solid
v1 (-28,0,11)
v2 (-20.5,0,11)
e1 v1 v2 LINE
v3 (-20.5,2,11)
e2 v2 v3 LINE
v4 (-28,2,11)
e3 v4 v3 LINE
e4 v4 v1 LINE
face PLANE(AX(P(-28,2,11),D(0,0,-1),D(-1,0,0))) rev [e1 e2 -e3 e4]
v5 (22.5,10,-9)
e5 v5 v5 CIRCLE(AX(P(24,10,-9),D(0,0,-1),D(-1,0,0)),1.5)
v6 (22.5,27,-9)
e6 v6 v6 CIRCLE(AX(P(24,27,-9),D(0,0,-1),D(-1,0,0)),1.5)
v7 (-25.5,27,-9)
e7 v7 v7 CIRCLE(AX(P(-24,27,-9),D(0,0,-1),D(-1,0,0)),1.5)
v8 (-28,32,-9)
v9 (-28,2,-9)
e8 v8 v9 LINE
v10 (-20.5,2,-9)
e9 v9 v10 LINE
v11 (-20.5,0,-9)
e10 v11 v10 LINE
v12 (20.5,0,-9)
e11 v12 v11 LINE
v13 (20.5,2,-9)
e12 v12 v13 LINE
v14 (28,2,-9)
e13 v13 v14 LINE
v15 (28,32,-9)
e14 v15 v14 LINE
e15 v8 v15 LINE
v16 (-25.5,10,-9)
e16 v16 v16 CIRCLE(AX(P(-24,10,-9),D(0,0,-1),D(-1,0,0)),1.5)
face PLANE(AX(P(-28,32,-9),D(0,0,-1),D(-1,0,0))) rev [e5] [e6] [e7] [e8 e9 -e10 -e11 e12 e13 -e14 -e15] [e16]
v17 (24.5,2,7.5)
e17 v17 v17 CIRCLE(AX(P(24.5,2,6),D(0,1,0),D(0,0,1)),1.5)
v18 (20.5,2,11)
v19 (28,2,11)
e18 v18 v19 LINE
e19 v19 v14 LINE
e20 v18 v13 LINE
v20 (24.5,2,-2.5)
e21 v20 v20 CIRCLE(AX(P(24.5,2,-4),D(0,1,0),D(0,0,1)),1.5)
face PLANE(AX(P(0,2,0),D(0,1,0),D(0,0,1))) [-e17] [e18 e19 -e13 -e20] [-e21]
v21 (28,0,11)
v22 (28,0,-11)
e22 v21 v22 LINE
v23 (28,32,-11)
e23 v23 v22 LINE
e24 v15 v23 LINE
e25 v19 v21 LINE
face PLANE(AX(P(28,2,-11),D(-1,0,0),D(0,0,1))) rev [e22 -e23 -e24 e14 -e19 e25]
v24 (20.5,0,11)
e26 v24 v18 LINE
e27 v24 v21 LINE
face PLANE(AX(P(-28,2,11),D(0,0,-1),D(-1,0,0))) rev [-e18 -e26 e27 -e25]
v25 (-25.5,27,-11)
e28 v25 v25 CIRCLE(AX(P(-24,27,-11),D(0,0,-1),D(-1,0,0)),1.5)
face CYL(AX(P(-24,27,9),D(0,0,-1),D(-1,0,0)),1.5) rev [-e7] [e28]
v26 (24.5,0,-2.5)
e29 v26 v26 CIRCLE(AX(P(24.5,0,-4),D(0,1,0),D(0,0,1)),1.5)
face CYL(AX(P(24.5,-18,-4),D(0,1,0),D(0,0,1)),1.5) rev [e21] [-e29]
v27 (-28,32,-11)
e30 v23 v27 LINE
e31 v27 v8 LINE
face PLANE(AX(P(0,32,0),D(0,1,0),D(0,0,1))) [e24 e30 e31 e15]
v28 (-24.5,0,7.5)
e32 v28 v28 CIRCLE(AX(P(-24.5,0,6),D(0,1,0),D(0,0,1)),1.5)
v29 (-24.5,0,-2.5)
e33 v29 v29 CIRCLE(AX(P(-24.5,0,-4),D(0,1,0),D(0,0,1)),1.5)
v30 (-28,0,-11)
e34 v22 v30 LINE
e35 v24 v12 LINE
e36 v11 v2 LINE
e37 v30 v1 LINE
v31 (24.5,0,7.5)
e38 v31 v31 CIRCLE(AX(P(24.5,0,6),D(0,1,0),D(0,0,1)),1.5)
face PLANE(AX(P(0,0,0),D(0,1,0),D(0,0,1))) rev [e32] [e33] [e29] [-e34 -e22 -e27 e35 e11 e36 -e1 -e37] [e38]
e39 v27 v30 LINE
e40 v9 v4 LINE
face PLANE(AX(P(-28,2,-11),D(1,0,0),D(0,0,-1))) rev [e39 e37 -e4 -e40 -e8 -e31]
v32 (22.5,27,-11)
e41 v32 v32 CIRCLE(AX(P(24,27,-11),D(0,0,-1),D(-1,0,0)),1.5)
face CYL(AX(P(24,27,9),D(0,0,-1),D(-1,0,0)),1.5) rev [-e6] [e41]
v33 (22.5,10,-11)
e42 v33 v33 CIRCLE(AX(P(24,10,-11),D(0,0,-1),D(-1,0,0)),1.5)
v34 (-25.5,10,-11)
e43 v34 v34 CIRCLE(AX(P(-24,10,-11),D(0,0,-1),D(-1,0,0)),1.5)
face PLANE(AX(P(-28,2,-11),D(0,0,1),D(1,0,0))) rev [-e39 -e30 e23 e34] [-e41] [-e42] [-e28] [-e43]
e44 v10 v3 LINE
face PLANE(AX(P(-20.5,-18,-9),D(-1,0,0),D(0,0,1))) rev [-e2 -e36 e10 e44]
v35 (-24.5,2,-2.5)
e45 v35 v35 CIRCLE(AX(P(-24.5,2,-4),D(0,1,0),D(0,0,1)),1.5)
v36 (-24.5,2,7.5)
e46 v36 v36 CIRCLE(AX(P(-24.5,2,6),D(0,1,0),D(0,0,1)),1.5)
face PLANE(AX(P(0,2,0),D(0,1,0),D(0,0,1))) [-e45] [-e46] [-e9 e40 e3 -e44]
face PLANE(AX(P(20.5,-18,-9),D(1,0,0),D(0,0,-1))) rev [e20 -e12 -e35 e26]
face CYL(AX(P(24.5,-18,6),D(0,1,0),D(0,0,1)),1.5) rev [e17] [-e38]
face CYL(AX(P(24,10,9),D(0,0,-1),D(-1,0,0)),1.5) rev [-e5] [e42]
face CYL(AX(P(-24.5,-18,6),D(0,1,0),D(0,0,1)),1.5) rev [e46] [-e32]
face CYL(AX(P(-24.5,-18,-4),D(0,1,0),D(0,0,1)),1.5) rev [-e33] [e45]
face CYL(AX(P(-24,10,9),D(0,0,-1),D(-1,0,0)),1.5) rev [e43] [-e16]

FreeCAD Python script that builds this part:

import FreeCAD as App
import Part
import Sketcher
Q = App.Units.Quantity

doc = App.newDocument("Part")
params = doc.addObject("Spreadsheet::Sheet", "Params")
for row, (alias, value) in enumerate([
    ("sketch1_width", "56 mm"),
    ("sketch1_height", "22 mm"),
    ("pad1_length", "2 mm"),
    ("sketch2_width", "56 mm"),
    ("sketch2_height", "2 mm"),
    ("pad2_length", "30 mm"),
    ("sketch3_width", "41 mm"),
    ("sketch3_height", "20 mm"),
    ("pocket1_length", "20 mm"),
    ("sketch4_diameter", "3 mm"),
    ("pocket2_length", "20 mm"),
    ("sketch5_diameter", "3 mm"),
    ("pocket3_length", "20 mm"),
], start=1):
    params.set(f"A{row}", alias)
    params.set(f"B{row}", "=" + value)
    params.setAlias(f"B{row}", alias)

body = doc.addObject("PartDesign::Body", "Body")

sketch1 = doc.addObject("Sketcher::SketchObject", "Sketch")
body.addObject(sketch1)
sketch1.AttachmentSupport = (doc.XZ_Plane, [""])
sketch1.MapMode = "FlatFace"
sketch1.addGeometry(Part.LineSegment(App.Vector(-28, -11, 0), App.Vector(-28, 11, 0)), False)
sketch1.addGeometry(Part.LineSegment(App.Vector(-28, 11, 0), App.Vector(28, 11, 0)), False)
sketch1.addGeometry(Part.LineSegment(App.Vector(28, 11, 0), App.Vector(28, -11, 0)), False)
sketch1.addGeometry(Part.LineSegment(App.Vector(28, -11, 0), App.Vector(-28, -11, 0)), False)
sketch1.addConstraint(Sketcher.Constraint("Coincident", 0, 2, 1, 1))
sketch1.addConstraint(Sketcher.Constraint("Coincident", 1, 2, 2, 1))
sketch1.addConstraint(Sketcher.Constraint("Coincident", 2, 2, 3, 1))
sketch1.addConstraint(Sketcher.Constraint("Coincident", 3, 2, 0, 1))
sketch1.addConstraint(Sketcher.Constraint("Vertical", 0))
sketch1.addConstraint(Sketcher.Constraint("Horizontal", 1))
sketch1.addConstraint(Sketcher.Constraint("Vertical", 2))
sketch1.addConstraint(Sketcher.Constraint("Horizontal", 3))
sketch1.addConstraint(Sketcher.Constraint("Symmetric", 0, 2, 2, 2, -1, 1))
sketch1.addConstraint(Sketcher.Constraint("DistanceX", 1, 1, 1, 2, Q("56 mm")))
sketch1.addConstraint(Sketcher.Constraint("DistanceY", 0, 1, 0, 2, Q("22 mm")))
sketch1.setExpression("Constraints[9]", "Params.sketch1_width")
sketch1.setExpression("Constraints[10]", "Params.sketch1_height")
pad1 = doc.addObject("PartDesign::Pad", "Pad")
body.addObject(pad1)
pad1.Profile = sketch1
pad1.setExpression("Length", "Params.pad1_length")
pad1.Reversed = True

sketch2 = doc.addObject("Sketcher::SketchObject", "Sketch001")
body.addObject(sketch2)
sketch2.AttachmentSupport = (doc.XZ_Plane, [""])
sketch2.MapMode = "FlatFace"
sketch2.AttachmentOffset = App.Placement(App.Vector(0, 0, -2), App.Rotation())
sketch2.addGeometry(Part.LineSegment(App.Vector(-28, -11, 0), App.Vector(-28, -9, 0)), False)
sketch2.addGeometry(Part.LineSegment(App.Vector(-28, -9, 0), App.Vector(28, -9, 0)), False)
sketch2.addGeometry(Part.LineSegment(App.Vector(28, -9, 0), App.Vector(28, -11, 0)), False)
sketch2.addGeometry(Part.LineSegment(App.Vector(28, -11, 0), App.Vector(-28, -11, 0)), False)
sketch2.addConstraint(Sketcher.Constraint("Coincident", 0, 2, 1, 1))
sketch2.addConstraint(Sketcher.Constraint("Coincident", 1, 2, 2, 1))
sketch2.addConstraint(Sketcher.Constraint("Coincident", 2, 2, 3, 1))
sketch2.addConstraint(Sketcher.Constraint("Coincident", 3, 2, 0, 1))
sketch2.addConstraint(Sketcher.Constraint("Vertical", 0))
sketch2.addConstraint(Sketcher.Constraint("Horizontal", 1))
sketch2.addConstraint(Sketcher.Constraint("Vertical", 2))
sketch2.addConstraint(Sketcher.Constraint("Horizontal", 3))
sketch2.addConstraint(Sketcher.Constraint("DistanceX", 1, 1, 1, 2, Q("56 mm")))
sketch2.addConstraint(Sketcher.Constraint("DistanceY", 0, 1, 0, 2, Q("2 mm")))
sketch2.addConstraint(Sketcher.Constraint("DistanceX", 0, 2, -1, 1, Q("28 mm")))
sketch2.addConstraint(Sketcher.Constraint("DistanceY", 0, 2, -1, 1, Q("9 mm")))
sketch2.setExpression("Constraints[8]", "Params.sketch2_width")
sketch2.setExpression("Constraints[9]", "Params.sketch2_height")
pad2 = doc.addObject("PartDesign::Pad", "Pad001")
body.addObject(pad2)
pad2.Profile = sketch2
pad2.setExpression("Length", "Params.pad2_length")
pad2.Reversed = True

sketch3 = doc.addObject("Sketcher::SketchObject", "Sketch002")
body.addObject(sketch3)
sketch3.AttachmentSupport = (doc.XZ_Plane, [""])
sketch3.MapMode = "FlatFace"
sketch3.AttachmentOffset = App.Placement(App.Vector(0, 0, -2), App.Rotation())
sketch3.addGeometry(Part.LineSegment(App.Vector(-20, -9, 0), App.Vector(-20, 11, 0)), False)
sketch3.addGeometry(Part.LineSegment(App.Vector(-20, 11, 0), App.Vector(20, 11, 0)), False)
sketch3.addGeometry(Part.LineSegment(App.Vector(20, 11, 0), App.Vector(20, -9, 0)), False)
sketch3.addGeometry(Part.LineSegment(App.Vector(20, -9, 0), App.Vector(-20, -9, 0)), False)
sketch3.addConstraint(Sketcher.Constraint("Coincident", 0, 2, 1, 1))
sketch3.addConstraint(Sketcher.Constraint("Coincident", 1, 2, 2, 1))
sketch3.addConstraint(Sketcher.Constraint("Coincident", 2, 2, 3, 1))
sketch3.addConstraint(Sketcher.Constraint("Coincident", 3, 2, 0, 1))
sketch3.addConstraint(Sketcher.Constraint("Vertical", 0))
sketch3.addConstraint(Sketcher.Constraint("Horizontal", 1))
sketch3.addConstraint(Sketcher.Constraint("Vertical", 2))
sketch3.addConstraint(Sketcher.Constraint("Horizontal", 3))
sketch3.addConstraint(Sketcher.Constraint("DistanceX", 1, 1, 1, 2, Q("41 mm")))
sketch3.addConstraint(Sketcher.Constraint("DistanceY", 0, 1, 0, 2, Q("20 mm")))
sketch3.addConstraint(Sketcher.Constraint("DistanceY", -1, 1, 0, 2, Q("11 mm")))
sketch3.addConstraint(Sketcher.Constraint("DistanceX", 0, 2, -1, 1, Q("20.5 mm")))
sketch3.setExpression("Constraints[8]", "Params.sketch3_width")
sketch3.setExpression("Constraints[9]", "Params.sketch3_height")
pocket1 = doc.addObject("PartDesign::Pocket", "Pocket")
body.addObject(pocket1)
pocket1.Profile = sketch3
pocket1.setExpression("Length", "Params.pocket1_length")
pocket1.Reversed = True

sketch4 = doc.addObject("Sketcher::SketchObject", "Sketch003")
body.addObject(sketch4)
sketch4.AttachmentSupport = (doc.XZ_Plane, [""])
sketch4.MapMode = "FlatFace"
sketch4.AttachmentOffset = App.Placement(App.Vector(0, 0, -2), App.Rotation())
sketch4.addGeometry(Part.Circle(App.Vector(-24.5, -4, 0), App.Vector(0, 0, 1), 1.5), False)
sketch4.addGeometry(Part.Circle(App.Vector(-24.5, 6, 0), App.Vector(0, 0, 1), 1.5), False)
sketch4.addGeometry(Part.Circle(App.Vector(24.5, -4, 0), App.Vector(0, 0, 1), 1.5), False)
sketch4.addGeometry(Part.Circle(App.Vector(24.5, 6, 0), App.Vector(0, 0, 1), 1.5), False)
sketch4.addConstraint(Sketcher.Constraint("Equal", 0, 1))
sketch4.addConstraint(Sketcher.Constraint("Equal", 1, 2))
sketch4.addConstraint(Sketcher.Constraint("Equal", 2, 3))
sketch4.addConstraint(Sketcher.Constraint("Symmetric", 0, 3, 2, 3, -2))
sketch4.addConstraint(Sketcher.Constraint("Symmetric", 1, 3, 3, 3, -2))
sketch4.addConstraint(Sketcher.Constraint("Vertical", 0, 3, 1, 3))
sketch4.addConstraint(Sketcher.Constraint("Diameter", 0, Q("3 mm")))
sketch4.addConstraint(Sketcher.Constraint("DistanceY", 0, 3, -1, 1, Q("4 mm")))
sketch4.addConstraint(Sketcher.Constraint("DistanceY", -1, 1, 1, 3, Q("6 mm")))
sketch4.addConstraint(Sketcher.Constraint("DistanceX", 0, 3, 2, 3, Q("49 mm")))
sketch4.setExpression("Constraints[6]", "Params.sketch4_diameter")
pocket2 = doc.addObject("PartDesign::Pocket", "Pocket001")
body.addObject(pocket2)
pocket2.Profile = sketch4
pocket2.setExpression("Length", "Params.pocket2_length")
pocket2.Reversed = True

sketch5 = doc.addObject("Sketcher::SketchObject", "Sketch004")
body.addObject(sketch5)
sketch5.AttachmentSupport = (doc.XY_Plane, [""])
sketch5.MapMode = "FlatFace"
sketch5.AttachmentOffset = App.Placement(App.Vector(0, 0, -11), App.Rotation())
sketch5.addGeometry(Part.Circle(App.Vector(24, 27, 0), App.Vector(0, 0, 1), 1.5), False)
sketch5.addGeometry(Part.Circle(App.Vector(24, 10, 0), App.Vector(0, 0, 1), 1.5), False)
sketch5.addGeometry(Part.Circle(App.Vector(-24, 10, 0), App.Vector(0, 0, 1), 1.5), False)
sketch5.addGeometry(Part.Circle(App.Vector(-24, 27, 0), App.Vector(0, 0, 1), 1.5), False)
sketch5.addConstraint(Sketcher.Constraint("Equal", 0, 1))
sketch5.addConstraint(Sketcher.Constraint("Equal", 1, 2))
sketch5.addConstraint(Sketcher.Constraint("Equal", 2, 3))
sketch5.addConstraint(Sketcher.Constraint("Symmetric", 1, 3, 2, 3, -2))
sketch5.addConstraint(Sketcher.Constraint("Symmetric", 0, 3, 3, 3, -2))
sketch5.addConstraint(Sketcher.Constraint("Vertical", 0, 3, 1, 3))
sketch5.addConstraint(Sketcher.Constraint("Diameter", 0, Q("3 mm")))
sketch5.addConstraint(Sketcher.Constraint("DistanceX", -1, 1, 0, 3, Q("24 mm")))
sketch5.addConstraint(Sketcher.Constraint("DistanceY", -1, 1, 0, 3, Q("27 mm")))
sketch5.addConstraint(Sketcher.Constraint("DistanceY", -1, 1, 1, 3, Q("10 mm")))
sketch5.setExpression("Constraints[6]", "Params.sketch5_diameter")
pocket3 = doc.addObject("PartDesign::Pocket", "Pocket002")
body.addObject(pocket3)
pocket3.Profile = sketch5
pocket3.setExpression("Length", "Params.pocket3_length")
pocket3.Reversed = True

doc.recompute()
